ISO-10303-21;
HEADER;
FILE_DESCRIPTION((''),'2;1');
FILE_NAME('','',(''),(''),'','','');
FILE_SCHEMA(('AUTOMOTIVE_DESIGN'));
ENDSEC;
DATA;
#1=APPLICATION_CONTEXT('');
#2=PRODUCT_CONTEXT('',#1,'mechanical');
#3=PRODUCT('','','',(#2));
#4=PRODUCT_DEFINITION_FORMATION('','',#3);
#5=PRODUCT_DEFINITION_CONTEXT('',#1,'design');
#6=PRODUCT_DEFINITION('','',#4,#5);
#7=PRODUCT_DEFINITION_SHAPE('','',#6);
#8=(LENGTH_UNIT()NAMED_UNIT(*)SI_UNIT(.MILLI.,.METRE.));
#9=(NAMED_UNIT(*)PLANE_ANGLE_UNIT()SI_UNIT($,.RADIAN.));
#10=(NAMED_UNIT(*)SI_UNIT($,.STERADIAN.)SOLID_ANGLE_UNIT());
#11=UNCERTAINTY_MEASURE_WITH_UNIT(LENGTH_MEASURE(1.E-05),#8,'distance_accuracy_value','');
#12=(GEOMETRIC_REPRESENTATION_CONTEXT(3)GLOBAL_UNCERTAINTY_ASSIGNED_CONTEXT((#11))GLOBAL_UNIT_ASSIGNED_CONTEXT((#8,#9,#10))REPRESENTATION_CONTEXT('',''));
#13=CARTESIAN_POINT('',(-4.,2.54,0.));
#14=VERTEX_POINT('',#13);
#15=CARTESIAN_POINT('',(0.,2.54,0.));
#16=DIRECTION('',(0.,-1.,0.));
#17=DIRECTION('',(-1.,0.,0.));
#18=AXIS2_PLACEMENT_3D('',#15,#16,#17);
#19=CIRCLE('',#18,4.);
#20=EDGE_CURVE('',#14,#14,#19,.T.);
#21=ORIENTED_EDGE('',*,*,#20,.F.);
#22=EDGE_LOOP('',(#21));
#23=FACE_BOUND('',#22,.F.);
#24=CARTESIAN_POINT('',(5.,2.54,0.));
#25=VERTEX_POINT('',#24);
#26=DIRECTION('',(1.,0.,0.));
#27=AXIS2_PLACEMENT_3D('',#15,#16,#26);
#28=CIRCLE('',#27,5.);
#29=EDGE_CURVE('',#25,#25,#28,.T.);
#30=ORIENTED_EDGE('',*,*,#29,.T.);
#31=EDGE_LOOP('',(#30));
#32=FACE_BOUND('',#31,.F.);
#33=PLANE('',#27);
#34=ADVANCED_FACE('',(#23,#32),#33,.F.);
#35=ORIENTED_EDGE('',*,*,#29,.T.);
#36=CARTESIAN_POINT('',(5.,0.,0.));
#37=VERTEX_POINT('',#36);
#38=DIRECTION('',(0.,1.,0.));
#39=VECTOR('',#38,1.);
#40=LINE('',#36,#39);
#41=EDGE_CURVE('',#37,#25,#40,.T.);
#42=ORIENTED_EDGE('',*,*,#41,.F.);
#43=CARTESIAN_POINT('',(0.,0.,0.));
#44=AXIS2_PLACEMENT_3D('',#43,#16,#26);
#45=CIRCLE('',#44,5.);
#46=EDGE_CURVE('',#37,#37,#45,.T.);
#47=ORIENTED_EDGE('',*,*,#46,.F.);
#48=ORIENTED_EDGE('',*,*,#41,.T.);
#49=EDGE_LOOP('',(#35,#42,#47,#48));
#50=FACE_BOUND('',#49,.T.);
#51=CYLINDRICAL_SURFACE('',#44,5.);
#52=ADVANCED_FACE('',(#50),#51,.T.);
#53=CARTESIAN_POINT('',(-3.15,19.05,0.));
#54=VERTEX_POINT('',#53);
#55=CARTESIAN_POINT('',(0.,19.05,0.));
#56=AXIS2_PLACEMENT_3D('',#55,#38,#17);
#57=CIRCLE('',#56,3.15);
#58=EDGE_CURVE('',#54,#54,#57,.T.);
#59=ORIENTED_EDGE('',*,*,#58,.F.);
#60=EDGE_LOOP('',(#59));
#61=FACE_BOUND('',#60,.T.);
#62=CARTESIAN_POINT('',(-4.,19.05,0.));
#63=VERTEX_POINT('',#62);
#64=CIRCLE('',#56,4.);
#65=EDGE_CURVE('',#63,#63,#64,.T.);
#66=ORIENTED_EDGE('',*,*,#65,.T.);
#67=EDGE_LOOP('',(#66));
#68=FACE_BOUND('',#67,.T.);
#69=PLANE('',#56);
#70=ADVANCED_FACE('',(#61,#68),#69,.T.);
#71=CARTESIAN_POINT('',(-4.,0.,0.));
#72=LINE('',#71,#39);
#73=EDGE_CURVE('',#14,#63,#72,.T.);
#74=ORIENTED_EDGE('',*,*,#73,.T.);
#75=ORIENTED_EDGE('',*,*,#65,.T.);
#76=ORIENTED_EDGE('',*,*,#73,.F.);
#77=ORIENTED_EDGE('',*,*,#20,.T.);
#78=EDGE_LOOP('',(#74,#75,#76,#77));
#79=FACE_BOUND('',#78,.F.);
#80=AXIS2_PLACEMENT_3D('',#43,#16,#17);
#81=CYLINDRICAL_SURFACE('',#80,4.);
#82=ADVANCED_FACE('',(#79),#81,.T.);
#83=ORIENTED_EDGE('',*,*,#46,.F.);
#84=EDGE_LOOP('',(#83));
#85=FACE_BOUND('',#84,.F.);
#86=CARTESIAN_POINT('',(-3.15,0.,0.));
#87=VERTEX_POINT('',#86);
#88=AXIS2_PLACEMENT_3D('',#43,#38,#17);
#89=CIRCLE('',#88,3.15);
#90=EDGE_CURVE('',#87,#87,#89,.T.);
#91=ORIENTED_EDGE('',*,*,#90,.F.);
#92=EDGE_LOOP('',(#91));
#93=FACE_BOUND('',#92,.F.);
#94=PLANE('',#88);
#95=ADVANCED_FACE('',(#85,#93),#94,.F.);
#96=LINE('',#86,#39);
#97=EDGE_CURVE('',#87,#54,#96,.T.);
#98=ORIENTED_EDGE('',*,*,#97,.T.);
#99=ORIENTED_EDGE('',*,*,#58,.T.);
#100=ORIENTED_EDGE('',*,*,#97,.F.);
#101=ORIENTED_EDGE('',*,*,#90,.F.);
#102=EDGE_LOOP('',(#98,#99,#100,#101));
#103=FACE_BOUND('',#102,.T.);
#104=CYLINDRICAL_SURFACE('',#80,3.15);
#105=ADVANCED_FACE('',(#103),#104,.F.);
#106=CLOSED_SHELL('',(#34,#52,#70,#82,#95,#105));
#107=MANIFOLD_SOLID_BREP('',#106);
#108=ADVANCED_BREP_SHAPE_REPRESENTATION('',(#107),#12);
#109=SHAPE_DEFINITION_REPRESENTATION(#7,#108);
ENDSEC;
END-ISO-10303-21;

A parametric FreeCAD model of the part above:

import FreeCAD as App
import Part
import Sketcher

V = App.Vector
Q = App.Units.Quantity

doc = App.newDocument("Part")
body = doc.addObject("PartDesign::Body", "Body")

sketch1 = doc.addObject("Sketcher::SketchObject", "Sketch")
body.addObject(sketch1)
sketch1.AttachmentSupport = (doc.XZ_Plane, [""])
sketch1.MapMode = "FlatFace"
sketch1.addGeometry([
    Part.Circle(V(0, 0, 0), V(0, 0, 1), 4),
    Part.Circle(V(0, 0, 0), V(0, 0, 1), 3.1),
], False)
sketch1.addConstraint([
    Sketcher.Constraint("Coincident", 0, 3, -1, 1),
    Sketcher.Constraint("Coincident", 1, 3, -1, 1),
    Sketcher.Constraint("Diameter", 0, Q("8 mm")),
    Sketcher.Constraint("Diameter", 1, Q("6.3 mm")),
])
pad1 = doc.addObject("PartDesign::Pad", "Pad")
body.addObject(pad1)
pad1.Profile = sketch1
pad1.Length = 19.05
pad1.Reversed = True

sketch2 = doc.addObject("Sketcher::SketchObject", "Sketch001")
body.addObject(sketch2)
sketch2.AttachmentSupport = (doc.XZ_Plane, [""])
sketch2.MapMode = "FlatFace"
sketch2.addGeometry([
    Part.Circle(V(0, 0, 0), V(0, 0, 1), 5),
    Part.Circle(V(0, 0, 0), V(0, 0, 1), 3.1),
], False)
sketch2.addConstraint([
    Sketcher.Constraint("Coincident", 0, 3, -1, 1),
    Sketcher.Constraint("Coincident", 1, 3, -1, 1),
    Sketcher.Constraint("Diameter", 0, Q("10 mm")),
    Sketcher.Constraint("Diameter", 1, Q("6.3 mm")),
])
pad2 = doc.addObject("PartDesign::Pad", "Pad001")
body.addObject(pad2)
pad2.Profile = sketch2
pad2.Length = 2.54
pad2.Reversed = True

doc.recompute()
